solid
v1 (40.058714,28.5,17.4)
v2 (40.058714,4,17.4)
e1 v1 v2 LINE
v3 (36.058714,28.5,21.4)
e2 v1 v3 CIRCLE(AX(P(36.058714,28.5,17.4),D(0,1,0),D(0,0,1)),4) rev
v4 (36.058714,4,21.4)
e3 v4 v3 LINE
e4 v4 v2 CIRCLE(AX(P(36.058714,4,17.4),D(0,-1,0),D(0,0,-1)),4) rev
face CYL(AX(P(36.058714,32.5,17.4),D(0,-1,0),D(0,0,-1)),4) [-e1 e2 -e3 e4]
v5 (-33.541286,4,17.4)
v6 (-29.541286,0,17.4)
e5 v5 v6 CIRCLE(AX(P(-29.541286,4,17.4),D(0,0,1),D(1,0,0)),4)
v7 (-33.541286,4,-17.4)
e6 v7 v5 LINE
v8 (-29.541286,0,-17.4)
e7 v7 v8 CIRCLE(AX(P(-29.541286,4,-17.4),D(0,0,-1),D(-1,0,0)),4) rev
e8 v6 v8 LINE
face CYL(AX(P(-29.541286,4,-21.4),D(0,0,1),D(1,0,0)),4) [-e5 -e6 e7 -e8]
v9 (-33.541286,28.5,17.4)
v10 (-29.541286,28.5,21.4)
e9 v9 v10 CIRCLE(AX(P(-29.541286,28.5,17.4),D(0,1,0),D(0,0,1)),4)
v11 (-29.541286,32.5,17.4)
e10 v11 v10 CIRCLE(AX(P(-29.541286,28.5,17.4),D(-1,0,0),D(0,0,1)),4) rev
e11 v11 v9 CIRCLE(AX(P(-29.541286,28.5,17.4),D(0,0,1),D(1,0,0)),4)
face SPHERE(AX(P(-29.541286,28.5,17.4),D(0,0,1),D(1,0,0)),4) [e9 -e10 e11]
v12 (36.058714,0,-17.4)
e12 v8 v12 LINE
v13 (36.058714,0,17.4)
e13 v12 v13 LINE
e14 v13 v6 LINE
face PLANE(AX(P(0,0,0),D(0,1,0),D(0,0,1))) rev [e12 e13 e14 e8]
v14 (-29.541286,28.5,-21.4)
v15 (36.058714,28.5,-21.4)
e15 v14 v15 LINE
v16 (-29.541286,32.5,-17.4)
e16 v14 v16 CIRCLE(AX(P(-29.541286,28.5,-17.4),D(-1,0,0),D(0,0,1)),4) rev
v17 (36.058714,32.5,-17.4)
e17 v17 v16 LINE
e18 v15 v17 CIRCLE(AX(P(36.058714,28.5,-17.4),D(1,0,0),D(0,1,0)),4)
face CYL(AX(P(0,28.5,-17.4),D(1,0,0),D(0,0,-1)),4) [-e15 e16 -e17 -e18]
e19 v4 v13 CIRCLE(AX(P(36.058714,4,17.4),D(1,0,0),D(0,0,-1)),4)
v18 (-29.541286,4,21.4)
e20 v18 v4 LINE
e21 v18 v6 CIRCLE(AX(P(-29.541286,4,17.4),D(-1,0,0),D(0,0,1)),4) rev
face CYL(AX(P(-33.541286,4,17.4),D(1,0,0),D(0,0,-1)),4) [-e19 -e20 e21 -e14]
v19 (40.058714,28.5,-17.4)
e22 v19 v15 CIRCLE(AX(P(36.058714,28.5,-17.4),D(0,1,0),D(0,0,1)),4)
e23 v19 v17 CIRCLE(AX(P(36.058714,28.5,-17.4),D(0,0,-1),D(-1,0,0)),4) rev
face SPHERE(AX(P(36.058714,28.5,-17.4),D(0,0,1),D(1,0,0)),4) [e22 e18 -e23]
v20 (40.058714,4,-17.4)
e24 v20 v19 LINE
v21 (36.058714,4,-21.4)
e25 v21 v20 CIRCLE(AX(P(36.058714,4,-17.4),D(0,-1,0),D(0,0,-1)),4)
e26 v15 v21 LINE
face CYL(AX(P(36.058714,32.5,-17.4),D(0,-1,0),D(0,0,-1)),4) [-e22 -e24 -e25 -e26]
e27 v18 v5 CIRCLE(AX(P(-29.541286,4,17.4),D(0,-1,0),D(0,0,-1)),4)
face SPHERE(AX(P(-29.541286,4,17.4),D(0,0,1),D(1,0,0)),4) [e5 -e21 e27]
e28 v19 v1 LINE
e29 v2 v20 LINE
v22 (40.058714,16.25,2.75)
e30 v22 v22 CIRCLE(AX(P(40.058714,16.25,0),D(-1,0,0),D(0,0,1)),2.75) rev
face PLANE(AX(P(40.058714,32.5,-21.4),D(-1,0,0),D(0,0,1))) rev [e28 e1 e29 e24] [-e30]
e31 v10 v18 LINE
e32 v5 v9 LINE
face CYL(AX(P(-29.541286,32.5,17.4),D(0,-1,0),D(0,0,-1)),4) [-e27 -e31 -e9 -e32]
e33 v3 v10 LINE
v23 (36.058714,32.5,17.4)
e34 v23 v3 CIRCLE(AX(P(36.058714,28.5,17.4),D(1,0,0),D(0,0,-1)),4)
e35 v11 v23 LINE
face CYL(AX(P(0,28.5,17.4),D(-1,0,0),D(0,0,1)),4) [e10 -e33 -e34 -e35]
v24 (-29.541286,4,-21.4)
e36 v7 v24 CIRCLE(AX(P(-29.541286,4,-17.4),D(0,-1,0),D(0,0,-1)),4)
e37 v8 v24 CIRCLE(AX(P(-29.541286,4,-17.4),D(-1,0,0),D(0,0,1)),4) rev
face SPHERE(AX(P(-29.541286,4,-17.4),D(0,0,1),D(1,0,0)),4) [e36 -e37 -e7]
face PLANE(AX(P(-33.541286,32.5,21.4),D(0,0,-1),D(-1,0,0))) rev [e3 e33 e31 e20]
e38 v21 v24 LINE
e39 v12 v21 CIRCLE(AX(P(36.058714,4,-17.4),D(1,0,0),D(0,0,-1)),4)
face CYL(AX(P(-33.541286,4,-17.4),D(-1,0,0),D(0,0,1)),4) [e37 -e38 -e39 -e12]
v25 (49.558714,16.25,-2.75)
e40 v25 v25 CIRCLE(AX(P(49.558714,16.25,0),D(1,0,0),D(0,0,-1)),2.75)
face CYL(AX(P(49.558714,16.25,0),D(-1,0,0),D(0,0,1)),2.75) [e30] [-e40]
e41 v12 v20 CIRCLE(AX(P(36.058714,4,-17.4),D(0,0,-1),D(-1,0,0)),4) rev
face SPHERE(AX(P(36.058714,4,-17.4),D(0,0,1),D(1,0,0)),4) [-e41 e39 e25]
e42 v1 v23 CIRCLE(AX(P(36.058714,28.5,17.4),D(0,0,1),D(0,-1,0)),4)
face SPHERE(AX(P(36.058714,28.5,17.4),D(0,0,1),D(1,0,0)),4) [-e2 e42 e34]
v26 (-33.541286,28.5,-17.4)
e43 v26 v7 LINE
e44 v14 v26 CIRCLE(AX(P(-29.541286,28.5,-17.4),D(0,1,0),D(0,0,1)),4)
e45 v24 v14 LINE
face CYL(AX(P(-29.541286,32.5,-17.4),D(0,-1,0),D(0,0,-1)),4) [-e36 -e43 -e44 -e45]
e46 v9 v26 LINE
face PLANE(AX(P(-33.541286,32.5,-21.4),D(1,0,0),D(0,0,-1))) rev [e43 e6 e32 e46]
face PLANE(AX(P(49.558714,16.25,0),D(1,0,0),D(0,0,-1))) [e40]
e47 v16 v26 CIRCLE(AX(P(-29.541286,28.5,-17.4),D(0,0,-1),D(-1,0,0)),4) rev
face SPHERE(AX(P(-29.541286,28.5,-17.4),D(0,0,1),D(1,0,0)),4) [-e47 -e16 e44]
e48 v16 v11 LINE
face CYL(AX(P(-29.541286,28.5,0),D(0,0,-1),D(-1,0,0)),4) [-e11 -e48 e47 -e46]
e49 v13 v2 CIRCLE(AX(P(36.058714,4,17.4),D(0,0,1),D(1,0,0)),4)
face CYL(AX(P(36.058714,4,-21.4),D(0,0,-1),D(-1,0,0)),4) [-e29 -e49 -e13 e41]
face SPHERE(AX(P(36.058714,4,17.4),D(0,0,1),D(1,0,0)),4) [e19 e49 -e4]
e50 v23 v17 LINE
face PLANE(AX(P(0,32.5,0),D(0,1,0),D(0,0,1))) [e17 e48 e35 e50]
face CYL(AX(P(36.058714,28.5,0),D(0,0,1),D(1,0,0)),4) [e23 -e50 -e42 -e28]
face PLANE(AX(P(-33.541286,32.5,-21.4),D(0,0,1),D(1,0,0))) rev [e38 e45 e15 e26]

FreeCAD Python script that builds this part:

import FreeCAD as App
import Part
import Sketcher


def edges_at(feature, points):
    """Names of the edges that pass closest to the given points."""
    edges = feature.Shape.Edges
    near = lambda p: min(range(len(edges)), key=lambda i: edges[i].distToShape(Part.Vertex(*p))[0])
    return sorted({f"Edge{near(p) + 1}" for p in points})


def add_polygon(sketch, points):
    """Adds a closed chain of lines whose ends are joined by coincident constraints."""
    first, n = sketch.GeometryCount, len(points)
    for a, b in zip(points, points[1:] + points[:1]):
        sketch.addGeometry(Part.LineSegment(App.Vector(*a, 0), App.Vector(*b, 0)), False)
    for i in range(n):
        sketch.addConstraint(Sketcher.Constraint("Coincident", first + i, 2, first + (i + 1) % n, 1))

doc = App.newDocument("Part")
body = doc.addObject("PartDesign::Body", "Body")

sketch1 = body.newObject("Sketcher::SketchObject", "Sketch")
sketch1.AttachmentSupport = (doc.getObject("XZ_Plane"), [""])
sketch1.MapMode = "FlatFace"
add_polygon(sketch1, [(-34, -21), (-34, 21), (40, 21), (40, -21)])
sketch1.addConstraint([
    Sketcher.Constraint("Vertical", 0),
    Sketcher.Constraint("Horizontal", 1),
    Sketcher.Constraint("Vertical", 2),
    Sketcher.Constraint("Horizontal", 3),
    Sketcher.Constraint("DistanceX", 1, 1, 1, 2, 73.6),
    Sketcher.Constraint("DistanceY", 0, 1, 0, 2, 42.8),
    Sketcher.Constraint("DistanceY", -1, 1, 0, 2, 21.4),
    Sketcher.Constraint("DistanceX", 0, 2, -1, 1, 33.541286),
])
pad1 = body.newObject("PartDesign::Pad", "Pad")
pad1.Profile = sketch1
pad1.Length = 32.5
pad1.Reversed = True

sketch2 = body.newObject("Sketcher::SketchObject", "Sketch001")
sketch2.AttachmentSupport = (doc.getObject("YZ_Plane"), [""])
sketch2.MapMode = "FlatFace"
sketch2.AttachmentOffset = App.Placement(App.Vector(0, 0, 40.058714), App.Rotation())
sketch2.addGeometry(Part.Circle(App.Vector(16.2, 0, 0), App.Vector(0, 0, 1), 2.8), False)
sketch2.addConstraint([
    Sketcher.Constraint("PointOnObject", 0, 3, -1),
    Sketcher.Constraint("Diameter", 0, 5.5),
    Sketcher.Constraint("DistanceX", -1, 1, 0, 3, 16.25),
])
pad2 = body.newObject("PartDesign::Pad", "Pad001")
pad2.Profile = sketch2
pad2.Length = 9.5
doc.recompute()

fillet = body.newObject("PartDesign::Fillet", "Fillet")
fillet.Base = (pad2, edges_at(pad2, [
    (-33.541, 32.5, 0),
    (3.259, 32.5, 21.4),
    (40.059, 32.5, 0),
    (3.259, 0, 21.4),
    (-33.541, 0, 0),
    (3.259, 0, -21.4),
    (40.059, 0, 0),
    (40.059, 16.25, 21.4),
    (-33.541, 16.25, 21.4),
    (-33.541, 16.25, -21.4),
    (40.059, 16.25, -21.4),
    (3.259, 32.5, -21.4),
]))
fillet.Radius = 4

doc.recompute()
